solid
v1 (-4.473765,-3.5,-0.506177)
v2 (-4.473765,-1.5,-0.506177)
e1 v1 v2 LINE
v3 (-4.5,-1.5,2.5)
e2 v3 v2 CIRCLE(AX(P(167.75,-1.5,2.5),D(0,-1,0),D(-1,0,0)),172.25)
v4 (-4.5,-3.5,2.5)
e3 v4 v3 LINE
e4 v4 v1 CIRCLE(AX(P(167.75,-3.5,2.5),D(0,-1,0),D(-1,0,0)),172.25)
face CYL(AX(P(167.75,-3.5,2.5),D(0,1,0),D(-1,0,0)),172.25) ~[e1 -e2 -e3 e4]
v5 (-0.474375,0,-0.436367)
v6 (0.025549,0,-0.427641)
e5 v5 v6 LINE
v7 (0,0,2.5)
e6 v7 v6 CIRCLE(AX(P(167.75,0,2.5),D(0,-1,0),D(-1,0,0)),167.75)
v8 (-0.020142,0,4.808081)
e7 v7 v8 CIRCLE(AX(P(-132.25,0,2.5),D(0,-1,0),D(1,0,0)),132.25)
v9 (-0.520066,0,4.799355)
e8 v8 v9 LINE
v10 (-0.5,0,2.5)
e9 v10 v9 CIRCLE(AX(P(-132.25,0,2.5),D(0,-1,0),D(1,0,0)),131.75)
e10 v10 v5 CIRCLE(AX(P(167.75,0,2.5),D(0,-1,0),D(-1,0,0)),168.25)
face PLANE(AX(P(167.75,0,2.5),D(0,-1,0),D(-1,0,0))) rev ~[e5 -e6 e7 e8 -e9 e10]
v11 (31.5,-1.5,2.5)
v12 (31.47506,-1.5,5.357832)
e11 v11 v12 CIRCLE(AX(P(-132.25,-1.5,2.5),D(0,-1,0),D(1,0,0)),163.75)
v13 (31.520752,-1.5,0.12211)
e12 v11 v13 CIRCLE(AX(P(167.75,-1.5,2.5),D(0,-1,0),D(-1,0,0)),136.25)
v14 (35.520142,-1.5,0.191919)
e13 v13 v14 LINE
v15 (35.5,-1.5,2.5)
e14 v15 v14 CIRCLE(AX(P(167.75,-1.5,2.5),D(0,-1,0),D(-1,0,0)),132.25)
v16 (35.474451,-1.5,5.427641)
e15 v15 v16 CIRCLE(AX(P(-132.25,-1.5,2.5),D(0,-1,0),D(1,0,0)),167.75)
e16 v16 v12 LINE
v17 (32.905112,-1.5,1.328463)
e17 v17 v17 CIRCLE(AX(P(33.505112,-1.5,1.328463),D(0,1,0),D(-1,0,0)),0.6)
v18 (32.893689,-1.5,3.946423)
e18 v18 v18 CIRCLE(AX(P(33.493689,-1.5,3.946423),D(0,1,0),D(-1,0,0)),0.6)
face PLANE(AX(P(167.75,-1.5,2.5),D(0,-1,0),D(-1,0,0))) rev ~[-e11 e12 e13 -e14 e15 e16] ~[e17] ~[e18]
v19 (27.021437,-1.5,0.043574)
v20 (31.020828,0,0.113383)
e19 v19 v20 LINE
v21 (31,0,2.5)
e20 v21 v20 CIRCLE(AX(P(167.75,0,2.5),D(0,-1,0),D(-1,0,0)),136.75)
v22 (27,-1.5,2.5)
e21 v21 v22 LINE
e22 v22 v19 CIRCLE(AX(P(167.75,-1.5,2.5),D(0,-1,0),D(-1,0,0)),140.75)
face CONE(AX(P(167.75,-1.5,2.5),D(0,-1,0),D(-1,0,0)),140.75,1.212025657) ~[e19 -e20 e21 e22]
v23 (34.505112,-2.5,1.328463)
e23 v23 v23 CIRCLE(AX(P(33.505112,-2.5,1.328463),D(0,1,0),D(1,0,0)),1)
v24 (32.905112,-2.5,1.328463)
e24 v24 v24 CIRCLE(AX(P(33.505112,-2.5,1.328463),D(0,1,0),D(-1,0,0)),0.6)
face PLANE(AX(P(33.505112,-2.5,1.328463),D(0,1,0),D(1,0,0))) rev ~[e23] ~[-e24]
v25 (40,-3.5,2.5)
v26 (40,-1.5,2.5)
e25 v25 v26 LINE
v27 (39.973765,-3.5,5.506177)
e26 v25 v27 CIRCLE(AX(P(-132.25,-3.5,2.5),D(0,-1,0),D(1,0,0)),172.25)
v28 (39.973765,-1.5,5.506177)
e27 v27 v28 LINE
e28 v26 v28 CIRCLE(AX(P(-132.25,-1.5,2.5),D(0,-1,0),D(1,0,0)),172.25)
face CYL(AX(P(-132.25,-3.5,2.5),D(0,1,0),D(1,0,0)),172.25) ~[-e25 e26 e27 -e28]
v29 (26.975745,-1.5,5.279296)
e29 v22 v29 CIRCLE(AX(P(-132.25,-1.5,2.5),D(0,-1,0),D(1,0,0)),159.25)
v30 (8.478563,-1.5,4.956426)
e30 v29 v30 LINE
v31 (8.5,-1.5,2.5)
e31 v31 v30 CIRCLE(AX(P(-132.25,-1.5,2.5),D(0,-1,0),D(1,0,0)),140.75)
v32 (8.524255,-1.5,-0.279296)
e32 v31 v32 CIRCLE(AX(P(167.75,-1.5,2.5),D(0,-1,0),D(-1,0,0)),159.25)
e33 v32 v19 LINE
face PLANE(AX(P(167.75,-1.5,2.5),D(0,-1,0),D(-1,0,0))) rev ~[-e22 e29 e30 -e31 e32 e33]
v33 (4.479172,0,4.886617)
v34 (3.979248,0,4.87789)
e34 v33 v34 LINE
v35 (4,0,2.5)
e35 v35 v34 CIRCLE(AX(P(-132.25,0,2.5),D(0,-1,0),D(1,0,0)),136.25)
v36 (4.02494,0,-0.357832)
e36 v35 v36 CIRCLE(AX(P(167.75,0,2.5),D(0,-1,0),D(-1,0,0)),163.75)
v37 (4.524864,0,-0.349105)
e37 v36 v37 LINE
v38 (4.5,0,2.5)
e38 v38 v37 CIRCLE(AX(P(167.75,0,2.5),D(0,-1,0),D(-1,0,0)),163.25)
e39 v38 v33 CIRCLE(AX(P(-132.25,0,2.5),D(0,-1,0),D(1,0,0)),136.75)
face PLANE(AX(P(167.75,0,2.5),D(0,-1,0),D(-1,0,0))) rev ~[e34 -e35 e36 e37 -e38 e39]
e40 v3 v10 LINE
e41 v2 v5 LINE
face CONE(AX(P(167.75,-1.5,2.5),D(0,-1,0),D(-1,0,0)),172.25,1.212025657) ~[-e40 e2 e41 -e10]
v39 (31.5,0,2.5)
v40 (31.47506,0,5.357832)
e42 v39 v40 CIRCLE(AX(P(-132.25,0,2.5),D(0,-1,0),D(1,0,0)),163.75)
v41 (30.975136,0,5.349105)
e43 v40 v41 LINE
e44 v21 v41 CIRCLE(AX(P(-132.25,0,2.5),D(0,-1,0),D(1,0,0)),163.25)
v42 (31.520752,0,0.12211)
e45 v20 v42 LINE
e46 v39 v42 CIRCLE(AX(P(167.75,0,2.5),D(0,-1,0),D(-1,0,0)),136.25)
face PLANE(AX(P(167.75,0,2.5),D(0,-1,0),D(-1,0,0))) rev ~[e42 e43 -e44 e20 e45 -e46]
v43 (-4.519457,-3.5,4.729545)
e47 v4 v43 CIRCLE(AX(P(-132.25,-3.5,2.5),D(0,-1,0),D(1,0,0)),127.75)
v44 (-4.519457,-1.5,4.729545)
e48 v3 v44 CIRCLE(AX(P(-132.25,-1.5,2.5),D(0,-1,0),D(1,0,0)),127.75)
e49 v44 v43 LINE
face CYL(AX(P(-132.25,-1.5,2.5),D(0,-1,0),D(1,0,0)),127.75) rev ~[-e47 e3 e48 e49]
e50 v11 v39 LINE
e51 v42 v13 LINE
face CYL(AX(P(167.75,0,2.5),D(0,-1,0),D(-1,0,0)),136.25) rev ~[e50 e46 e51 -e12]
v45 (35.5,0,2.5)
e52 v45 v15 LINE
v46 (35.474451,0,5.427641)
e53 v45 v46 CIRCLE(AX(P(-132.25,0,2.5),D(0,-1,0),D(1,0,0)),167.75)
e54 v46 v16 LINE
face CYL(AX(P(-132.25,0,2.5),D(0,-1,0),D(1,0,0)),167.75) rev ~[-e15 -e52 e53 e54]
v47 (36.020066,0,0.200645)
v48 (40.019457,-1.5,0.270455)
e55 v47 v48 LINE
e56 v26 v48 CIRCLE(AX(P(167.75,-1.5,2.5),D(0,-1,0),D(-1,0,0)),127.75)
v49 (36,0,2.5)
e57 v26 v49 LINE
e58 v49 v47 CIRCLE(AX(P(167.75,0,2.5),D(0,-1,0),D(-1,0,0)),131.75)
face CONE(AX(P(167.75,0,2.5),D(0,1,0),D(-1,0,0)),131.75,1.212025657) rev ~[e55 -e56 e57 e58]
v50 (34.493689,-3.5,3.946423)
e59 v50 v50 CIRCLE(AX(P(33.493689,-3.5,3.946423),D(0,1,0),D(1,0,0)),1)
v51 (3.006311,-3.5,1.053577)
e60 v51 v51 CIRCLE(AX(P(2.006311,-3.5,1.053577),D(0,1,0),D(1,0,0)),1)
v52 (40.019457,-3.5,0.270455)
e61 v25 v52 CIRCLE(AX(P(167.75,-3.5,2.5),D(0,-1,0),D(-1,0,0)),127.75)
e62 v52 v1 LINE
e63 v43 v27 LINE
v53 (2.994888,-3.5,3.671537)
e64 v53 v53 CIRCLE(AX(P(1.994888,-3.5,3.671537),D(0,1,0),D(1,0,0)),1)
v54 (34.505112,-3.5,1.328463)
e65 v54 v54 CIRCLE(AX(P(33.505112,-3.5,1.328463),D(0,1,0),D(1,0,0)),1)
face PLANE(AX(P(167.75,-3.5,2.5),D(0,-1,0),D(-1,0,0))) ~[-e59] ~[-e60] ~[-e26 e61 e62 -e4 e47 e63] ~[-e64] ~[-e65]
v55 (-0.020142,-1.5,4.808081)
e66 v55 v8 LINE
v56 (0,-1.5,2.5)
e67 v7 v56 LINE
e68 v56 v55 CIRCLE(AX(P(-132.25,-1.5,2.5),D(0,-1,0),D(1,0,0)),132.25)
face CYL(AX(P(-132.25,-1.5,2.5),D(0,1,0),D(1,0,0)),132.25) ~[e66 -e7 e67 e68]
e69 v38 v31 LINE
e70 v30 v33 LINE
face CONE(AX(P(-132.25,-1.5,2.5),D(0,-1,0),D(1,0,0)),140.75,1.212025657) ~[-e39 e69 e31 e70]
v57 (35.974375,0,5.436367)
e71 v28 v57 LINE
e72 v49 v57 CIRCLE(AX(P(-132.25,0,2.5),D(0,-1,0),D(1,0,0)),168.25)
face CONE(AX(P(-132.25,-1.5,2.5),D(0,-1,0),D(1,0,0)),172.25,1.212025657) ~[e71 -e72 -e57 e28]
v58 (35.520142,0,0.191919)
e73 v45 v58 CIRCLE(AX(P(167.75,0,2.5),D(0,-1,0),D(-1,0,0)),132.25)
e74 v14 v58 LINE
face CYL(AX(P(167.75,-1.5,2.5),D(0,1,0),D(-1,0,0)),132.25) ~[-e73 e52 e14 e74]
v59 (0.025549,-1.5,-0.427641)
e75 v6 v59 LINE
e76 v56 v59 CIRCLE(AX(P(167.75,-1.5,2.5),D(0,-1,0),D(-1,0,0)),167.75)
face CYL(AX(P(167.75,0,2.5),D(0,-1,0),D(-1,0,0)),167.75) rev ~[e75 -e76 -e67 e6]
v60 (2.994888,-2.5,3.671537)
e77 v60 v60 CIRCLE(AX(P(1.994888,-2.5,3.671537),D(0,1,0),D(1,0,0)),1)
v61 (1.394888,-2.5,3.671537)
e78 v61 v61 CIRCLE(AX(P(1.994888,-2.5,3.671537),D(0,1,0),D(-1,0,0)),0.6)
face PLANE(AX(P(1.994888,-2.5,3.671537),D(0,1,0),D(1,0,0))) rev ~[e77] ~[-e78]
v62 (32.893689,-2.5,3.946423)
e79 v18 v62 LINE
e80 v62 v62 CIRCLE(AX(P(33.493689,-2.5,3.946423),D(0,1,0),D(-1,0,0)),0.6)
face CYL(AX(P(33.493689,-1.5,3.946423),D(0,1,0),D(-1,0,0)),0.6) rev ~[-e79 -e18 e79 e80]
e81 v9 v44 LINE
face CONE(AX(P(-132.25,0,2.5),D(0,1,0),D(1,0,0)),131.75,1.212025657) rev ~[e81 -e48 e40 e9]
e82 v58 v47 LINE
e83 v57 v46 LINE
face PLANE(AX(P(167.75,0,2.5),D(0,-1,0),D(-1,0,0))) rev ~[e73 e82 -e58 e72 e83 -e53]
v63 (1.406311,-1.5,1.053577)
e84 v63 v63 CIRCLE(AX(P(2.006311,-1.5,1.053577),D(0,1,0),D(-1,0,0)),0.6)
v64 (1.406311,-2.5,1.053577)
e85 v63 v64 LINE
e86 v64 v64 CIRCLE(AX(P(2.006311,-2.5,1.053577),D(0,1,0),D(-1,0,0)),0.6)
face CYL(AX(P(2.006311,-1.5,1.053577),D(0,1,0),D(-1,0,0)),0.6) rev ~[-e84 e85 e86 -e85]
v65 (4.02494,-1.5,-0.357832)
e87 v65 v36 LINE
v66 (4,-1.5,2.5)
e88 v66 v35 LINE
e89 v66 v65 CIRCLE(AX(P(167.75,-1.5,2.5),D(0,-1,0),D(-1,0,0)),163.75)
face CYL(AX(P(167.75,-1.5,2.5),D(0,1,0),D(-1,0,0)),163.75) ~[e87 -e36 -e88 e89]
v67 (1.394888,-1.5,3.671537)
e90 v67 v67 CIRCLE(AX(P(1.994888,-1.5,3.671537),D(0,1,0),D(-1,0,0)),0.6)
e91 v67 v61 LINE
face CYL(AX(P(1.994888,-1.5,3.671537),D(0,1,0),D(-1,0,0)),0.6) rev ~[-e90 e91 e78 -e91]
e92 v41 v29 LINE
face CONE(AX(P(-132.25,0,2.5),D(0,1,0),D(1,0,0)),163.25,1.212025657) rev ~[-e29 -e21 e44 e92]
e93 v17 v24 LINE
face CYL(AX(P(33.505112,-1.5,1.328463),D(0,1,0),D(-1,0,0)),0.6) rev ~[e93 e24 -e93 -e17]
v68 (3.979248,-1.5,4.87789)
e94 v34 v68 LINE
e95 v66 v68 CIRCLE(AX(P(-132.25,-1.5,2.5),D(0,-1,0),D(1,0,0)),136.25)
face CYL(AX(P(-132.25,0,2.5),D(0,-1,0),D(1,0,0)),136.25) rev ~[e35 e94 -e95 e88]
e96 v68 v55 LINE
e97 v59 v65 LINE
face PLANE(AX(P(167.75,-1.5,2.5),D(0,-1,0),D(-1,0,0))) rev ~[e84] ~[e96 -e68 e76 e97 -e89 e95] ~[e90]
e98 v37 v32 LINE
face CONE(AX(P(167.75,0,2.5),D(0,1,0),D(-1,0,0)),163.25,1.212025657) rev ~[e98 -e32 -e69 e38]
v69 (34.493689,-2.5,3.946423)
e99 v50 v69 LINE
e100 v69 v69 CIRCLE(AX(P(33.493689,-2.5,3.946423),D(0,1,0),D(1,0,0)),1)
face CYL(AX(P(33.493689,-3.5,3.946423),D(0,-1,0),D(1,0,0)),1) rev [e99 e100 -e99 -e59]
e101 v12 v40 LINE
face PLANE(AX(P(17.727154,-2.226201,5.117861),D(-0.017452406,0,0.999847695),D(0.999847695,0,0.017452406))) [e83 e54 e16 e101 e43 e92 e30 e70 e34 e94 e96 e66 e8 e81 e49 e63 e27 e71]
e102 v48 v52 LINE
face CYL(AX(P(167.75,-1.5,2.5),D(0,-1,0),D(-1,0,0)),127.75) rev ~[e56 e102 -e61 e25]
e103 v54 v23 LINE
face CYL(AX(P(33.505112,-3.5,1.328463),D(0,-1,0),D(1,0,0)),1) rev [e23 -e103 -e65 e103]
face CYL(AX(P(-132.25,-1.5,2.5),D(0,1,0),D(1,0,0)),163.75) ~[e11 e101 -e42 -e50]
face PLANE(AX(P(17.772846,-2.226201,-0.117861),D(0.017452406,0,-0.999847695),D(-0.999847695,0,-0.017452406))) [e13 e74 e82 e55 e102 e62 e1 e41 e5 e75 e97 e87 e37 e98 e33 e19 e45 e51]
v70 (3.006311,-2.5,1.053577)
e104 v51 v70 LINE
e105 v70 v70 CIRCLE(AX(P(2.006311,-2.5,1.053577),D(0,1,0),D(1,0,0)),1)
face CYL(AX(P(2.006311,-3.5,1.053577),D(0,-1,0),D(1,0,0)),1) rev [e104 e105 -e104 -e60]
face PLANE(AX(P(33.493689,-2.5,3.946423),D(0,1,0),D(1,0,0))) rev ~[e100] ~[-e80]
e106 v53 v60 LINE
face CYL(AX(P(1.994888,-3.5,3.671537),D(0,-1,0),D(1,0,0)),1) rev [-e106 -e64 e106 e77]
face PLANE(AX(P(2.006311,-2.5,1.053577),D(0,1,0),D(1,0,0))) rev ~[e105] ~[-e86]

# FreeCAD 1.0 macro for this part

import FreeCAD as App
import Part
import Sketcher
from FreeCAD import Vector
Q = App.Units.Quantity

doc = App.newDocument("Part")
params = doc.addObject("Spreadsheet::Sheet", "Params")
for row, (alias, value) in enumerate([
    ("sketch1_width", "4 mm"),
    ("sketch1_height", "2 mm"),
    ("sketch1_width2", "0.5 mm"),
    ("sketch1_height2", "1.5 mm"),
    ("sketch1_width3", "9.25 mm"),
    ("pad1_length", "2.5 mm"),
    ("sketch2_diameter", "1.2 mm"),
    ("sketch3_diameter", "2 mm"),
    ("pocket2_length", "1 mm"),
    ("sketch4_width", "4 mm"),
    ("sketch4_height", "2 mm"),
    ("sketch4_width2", "0.5 mm"),
    ("sketch4_width3", "44.5 mm"),
    ("sketch4_width4", "18.5 mm"),
    ("revolution_angle", "1 deg"),
    ("sketch5_diameter", "1.2 mm"),
    ("sketch6_diameter", "2 mm"),
    ("pocket4_length", "1 mm"),
    ("sketch7_width", "44.5 mm"),
    ("sketch7_height", "2.5 mm"),
    ("sketch8_width", "4 mm"),
    ("sketch8_height", "2 mm"),
    ("sketch8_width2", "0.5 mm"),
    ("sketch8_width3", "18.5 mm"),
    ("sketch8_width4", "44.5 mm"),
    ("revolution2_angle", "1 deg"),
    ("sketch9_diameter", "1.2 mm"),
    ("sketch10_diameter", "2 mm"),
    ("pocket7_length", "1 mm"),
], start=1):
    params.set(f"A{row}", alias)
    params.set(f"B{row}", "=" + value)
    params.setAlias(f"B{row}", alias)

body = doc.addObject("PartDesign::Body", "Body")

# Sketch on XY plane
sketch1 = doc.addObject("Sketcher::SketchObject", "Sketch")
body.addObject(sketch1)
sketch1.AttachmentSupport = (doc.XY_Plane, [""])
sketch1.MapMode = "FlatFace"
sketch1.addGeometry(Part.LineSegment(Vector(17.8, -1.5, 0), Vector(8.5, -1.5, 0)), False)
sketch1.addGeometry(Part.LineSegment(Vector(8.5, -1.5, 0), Vector(4.5, 0, 0)), False)
sketch1.addGeometry(Part.LineSegment(Vector(4.5, 0, 0), Vector(4, 0, 0)), False)
sketch1.addGeometry(Part.LineSegment(Vector(4, 0, 0), Vector(4, -1.5, 0)), False)
sketch1.addGeometry(Part.LineSegment(Vector(4, -1.5, 0), Vector(0, -1.5, 0)), False)
sketch1.addGeometry(Part.LineSegment(Vector(0, -1.5, 0), Vector(0, 0, 0)), False)
sketch1.addGeometry(Part.LineSegment(Vector(0, 0, 0), Vector(-0.5, 0, 0)), False)
sketch1.addGeometry(Part.LineSegment(Vector(-0.5, 0, 0), Vector(-4.5, -1.5, 0)), False)
sketch1.addGeometry(Part.LineSegment(Vector(-4.5, -1.5, 0), Vector(-4.5, -3.5, 0)), False)
sketch1.addGeometry(Part.LineSegment(Vector(-4.5, -3.5, 0), Vector(17.8, -3.5, 0)), False)
sketch1.addGeometry(Part.LineSegment(Vector(17.8, -3.5, 0), Vector(17.8, -1.5, 0)), False)
sketch1.addConstraint(Sketcher.Constraint("Coincident", 0, 2, 1, 1))
sketch1.addConstraint(Sketcher.Constraint("Coincident", 1, 2, 2, 1))
sketch1.addConstraint(Sketcher.Constraint("Coincident", 2, 2, 3, 1))
sketch1.addConstraint(Sketcher.Constraint("Coincident", 3, 2, 4, 1))
sketch1.addConstraint(Sketcher.Constraint("Coincident", 4, 2, 5, 1))
sketch1.addConstraint(Sketcher.Constraint("Coincident", 5, 2, 6, 1))
sketch1.addConstraint(Sketcher.Constraint("Coincident", 6, 2, 7, 1))
sketch1.addConstraint(Sketcher.Constraint("Coincident", 7, 2, 8, 1))
sketch1.addConstraint(Sketcher.Constraint("Coincident", 8, 2, 9, 1))
sketch1.addConstraint(Sketcher.Constraint("Coincident", 9, 2, 10, 1))
sketch1.addConstraint(Sketcher.Constraint("Coincident", 10, 2, 0, 1))
sketch1.addConstraint(Sketcher.Constraint("Horizontal", 0))
sketch1.addConstraint(Sketcher.Constraint("Horizontal", 2))
sketch1.addConstraint(Sketcher.Constraint("Vertical", 3))
sketch1.addConstraint(Sketcher.Constraint("Horizontal", 4))
sketch1.addConstraint(Sketcher.Constraint("Vertical", 5))
sketch1.addConstraint(Sketcher.Constraint("Horizontal", 6))
sketch1.addConstraint(Sketcher.Constraint("Vertical", 8))
sketch1.addConstraint(Sketcher.Constraint("Horizontal", 9))
sketch1.addConstraint(Sketcher.Constraint("Vertical", 10))
sketch1.addConstraint(Sketcher.Constraint("Coincident", 5, 2, -1, 1))
sketch1.addConstraint(Sketcher.Constraint("PointOnObject", 1, 2, -1))
sketch1.addConstraint(Sketcher.Constraint("Horizontal", 0, 2, 3, 2))
sketch1.addConstraint(Sketcher.Constraint("Horizontal", 4, 2, 7, 2))
sketch1.addConstraint(Sketcher.Constraint("Equal", 2, 6))
sketch1.addConstraint(Sketcher.Constraint("Equal", 1, 7))
sketch1.addConstraint(Sketcher.Constraint("DistanceX", 4, 2, 4, 1, Q("4 mm")))
sketch1.addConstraint(Sketcher.Constraint("DistanceY", 8, 2, 8, 1, Q("2 mm")))
sketch1.addConstraint(Sketcher.Constraint("DistanceX", 2, 2, 2, 1, Q("0.5 mm")))
sketch1.addConstraint(Sketcher.Constraint("DistanceY", 3, 2, 3, 1, Q("1.5 mm")))
sketch1.addConstraint(Sketcher.Constraint("DistanceX", 1, 2, 0, 2, Q("4 mm")))
sketch1.addConstraint(Sketcher.Constraint("DistanceX", 0, 2, 0, 1, Q("9.25 mm")))
sketch1.setExpression("Constraints[26]", "Params.sketch1_width")
sketch1.setExpression("Constraints[27]", "Params.sketch1_height")
sketch1.setExpression("Constraints[28]", "Params.sketch1_width2")
sketch1.setExpression("Constraints[29]", "Params.sketch1_height2")
sketch1.setExpression("Constraints[31]", "Params.sketch1_width3")
pad1 = doc.addObject("PartDesign::Pad", "Pad")
body.addObject(pad1)
pad1.Profile = sketch1
pad1.setExpression("Length", "Params.pad1_length")

# Sketch on XZ plane
sketch2 = doc.addObject("Sketcher::SketchObject", "Sketch001")
body.addObject(sketch2)
sketch2.AttachmentSupport = (doc.XZ_Plane, [""])
sketch2.MapMode = "FlatFace"
sketch2.AttachmentOffset = App.Placement(Vector(0, 0, 1.5), App.Rotation())
sketch2.addGeometry(Part.Circle(Vector(2, 1.2, 0), Vector(0, 0, 1), 0.6), False)
sketch2.addConstraint(Sketcher.Constraint("Diameter", 0, Q("1.2 mm")))
sketch2.addConstraint(Sketcher.Constraint("DistanceX", -1, 1, 0, 3, Q("2 mm")))
sketch2.addConstraint(Sketcher.Constraint("DistanceY", -1, 1, 0, 3, Q("1.25 mm")))
sketch2.setExpression("Constraints[0]", "Params.sketch2_diameter")
pocket1 = doc.addObject("PartDesign::Pocket", "Pocket")
body.addObject(pocket1)
pocket1.Profile = sketch2
pocket1.Type = "ThroughAll"
pocket1.Reversed = True

# Sketch on XZ plane
sketch3 = doc.addObject("Sketcher::SketchObject", "Sketch002")
body.addObject(sketch3)
sketch3.AttachmentSupport = (doc.XZ_Plane, [""])
sketch3.MapMode = "FlatFace"
sketch3.AttachmentOffset = App.Placement(Vector(0, 0, 3.5), App.Rotation())
sketch3.addGeometry(Part.Circle(Vector(2, 1.2, 0), Vector(0, 0, 1), 1), False)
sketch3.addConstraint(Sketcher.Constraint("Diameter", 0, Q("2 mm")))
sketch3.addConstraint(Sketcher.Constraint("DistanceX", -1, 1, 0, 3, Q("2 mm")))
sketch3.addConstraint(Sketcher.Constraint("DistanceY", -1, 1, 0, 3, Q("1.25 mm")))
sketch3.setExpression("Constraints[0]", "Params.sketch3_diameter")
pocket2 = doc.addObject("PartDesign::Pocket", "Pocket001")
body.addObject(pocket2)
pocket2.Profile = sketch3
pocket2.setExpression("Length", "Params.pocket2_length")
body2 = doc.addObject("PartDesign::Body", "Body001")
doc.recompute()

body2.BaseFeature = body
doc.recompute()

mirroring = doc.addObject("Part::Mirroring", "Mirroring")
mirroring.Source = body
mirroring.Base = Vector(17.75, 0, 2.5)
mirroring.Normal = Vector(1, 0, 0)
body3 = doc.addObject("PartDesign::Body", "Body002")
body3.BaseFeature = mirroring
boolean = doc.addObject("PartDesign::Boolean", "Boolean")
body2.addObject(boolean)
boolean.Type = "Fuse"
boolean.addObjects([body3])
doc.recompute()

# Sketch on XY plane
sketch4 = doc.addObject("Sketcher::SketchObject", "Sketch003")
body2.addObject(sketch4)
sketch4.AttachmentSupport = (doc.getObject("XY_Plane001"), [""])
sketch4.MapMode = "FlatFace"
sketch4.AttachmentOffset = App.Placement(Vector(0, 0, 2.5), App.Rotation())
sketch4.addGeometry(Part.LineSegment(Vector(0, 0, 0), Vector(-0.5, 0, 0)), False)
sketch4.addGeometry(Part.LineSegment(Vector(-0.5, 0, 0), Vector(-4.5, -1.5, 0)), False)
sketch4.addGeometry(Part.LineSegment(Vector(-4.5, -1.5, 0), Vector(-4.5, -3.5, 0)), False)
sketch4.addGeometry(Part.LineSegment(Vector(-4.5, -3.5, 0), Vector(40, -3.5, 0)), False)
sketch4.addGeometry(Part.LineSegment(Vector(40, -3.5, 0), Vector(40, -1.5, 0)), False)
sketch4.addGeometry(Part.LineSegment(Vector(40, -1.5, 0), Vector(36, 0, 0)), False)
sketch4.addGeometry(Part.LineSegment(Vector(36, 0, 0), Vector(35.5, 0, 0)), False)
sketch4.addGeometry(Part.LineSegment(Vector(35.5, 0, 0), Vector(35.5, -1.5, 0)), False)
sketch4.addGeometry(Part.LineSegment(Vector(35.5, -1.5, 0), Vector(31.5, -1.5, 0)), False)
sketch4.addGeometry(Part.LineSegment(Vector(31.5, -1.5, 0), Vector(31.5, 0, 0)), False)
sketch4.addGeometry(Part.LineSegment(Vector(31.5, 0, 0), Vector(31, 0, 0)), False)
sketch4.addGeometry(Part.LineSegment(Vector(31, 0, 0), Vector(27, -1.5, 0)), False)
sketch4.addGeometry(Part.LineSegment(Vector(27, -1.5, 0), Vector(8.5, -1.5, 0)), False)
sketch4.addGeometry(Part.LineSegment(Vector(8.5, -1.5, 0), Vector(4.5, 0, 0)), False)
sketch4.addGeometry(Part.LineSegment(Vector(4.5, 0, 0), Vector(4, 0, 0)), False)
sketch4.addGeometry(Part.LineSegment(Vector(4, 0, 0), Vector(4, -1.5, 0)), False)
sketch4.addGeometry(Part.LineSegment(Vector(4, -1.5, 0), Vector(0, -1.5, 0)), False)
sketch4.addGeometry(Part.LineSegment(Vector(0, -1.5, 0), Vector(0, 0, 0)), False)
sketch4.addGeometry(Part.LineSegment(Vector(-132.2, 0, 0), Vector(-132.2, -3.5, 0)), True)  # axis
sketch4.addConstraint(Sketcher.Constraint("Coincident", 0, 2, 1, 1))
sketch4.addConstraint(Sketcher.Constraint("Coincident", 1, 2, 2, 1))
sketch4.addConstraint(Sketcher.Constraint("Coincident", 2, 2, 3, 1))
sketch4.addConstraint(Sketcher.Constraint("Coincident", 3, 2, 4, 1))
sketch4.addConstraint(Sketcher.Constraint("Coincident", 4, 2, 5, 1))
sketch4.addConstraint(Sketcher.Constraint("Coincident", 5, 2, 6, 1))
sketch4.addConstraint(Sketcher.Constraint("Coincident", 6, 2, 7, 1))
sketch4.addConstraint(Sketcher.Constraint("Coincident", 7, 2, 8, 1))
sketch4.addConstraint(Sketcher.Constraint("Coincident", 8, 2, 9, 1))
sketch4.addConstraint(Sketcher.Constraint("Coincident", 9, 2, 10, 1))
sketch4.addConstraint(Sketcher.Constraint("Coincident", 10, 2, 11, 1))
sketch4.addConstraint(Sketcher.Constraint("Coincident", 11, 2, 12, 1))
sketch4.addConstraint(Sketcher.Constraint("Coincident", 12, 2, 13, 1))
sketch4.addConstraint(Sketcher.Constraint("Coincident", 13, 2, 14, 1))
sketch4.addConstraint(Sketcher.Constraint("Coincident", 14, 2, 15, 1))
sketch4.addConstraint(Sketcher.Constraint("Coincident", 15, 2, 16, 1))
sketch4.addConstraint(Sketcher.Constraint("Coincident", 16, 2, 17, 1))
sketch4.addConstraint(Sketcher.Constraint("Coincident", 17, 2, 0, 1))
sketch4.addConstraint(Sketcher.Constraint("Horizontal", 0))
sketch4.addConstraint(Sketcher.Constraint("Vertical", 2))
sketch4.addConstraint(Sketcher.Constraint("Horizontal", 3))
sketch4.addConstraint(Sketcher.Constraint("Vertical", 4))
sketch4.addConstraint(Sketcher.Constraint("Horizontal", 6))
sketch4.addConstraint(Sketcher.Constraint("Vertical", 7))
sketch4.addConstraint(Sketcher.Constraint("Horizontal", 8))
sketch4.addConstraint(Sketcher.Constraint("Vertical", 9))
sketch4.addConstraint(Sketcher.Constraint("Horizontal", 10))
sketch4.addConstraint(Sketcher.Constraint("Horizontal", 12))
sketch4.addConstraint(Sketcher.Constraint("Horizontal", 14))
sketch4.addConstraint(Sketcher.Constraint("Vertical", 15))
sketch4.addConstraint(Sketcher.Constraint("Horizontal", 16))
sketch4.addConstraint(Sketcher.Constraint("Vertical", 17))
sketch4.addConstraint(Sketcher.Constraint("Vertical", 18))
sketch4.addConstraint(Sketcher.Constraint("Coincident", 17, 2, -1, 1))
sketch4.addConstraint(Sketcher.Constraint("PointOnObject", 5, 2, -1))
sketch4.addConstraint(Sketcher.Constraint("PointOnObject", 9, 2, -1))
sketch4.addConstraint(Sketcher.Constraint("PointOnObject", 13, 2, -1))
sketch4.addConstraint(Sketcher.Constraint("PointOnObject", 18, 1, -1))
sketch4.addConstraint(Sketcher.Constraint("Parallel", 1, 11))
sketch4.addConstraint(Sketcher.Constraint("Parallel", 5, 13))
sketch4.addConstraint(Sketcher.Constraint("Horizontal", 1, 2, 4, 2))
sketch4.addConstraint(Sketcher.Constraint("Horizontal", 4, 2, 7, 2))
sketch4.addConstraint(Sketcher.Constraint("Horizontal", 8, 2, 11, 2))
sketch4.addConstraint(Sketcher.Constraint("Horizontal", 12, 2, 15, 2))
sketch4.addConstraint(Sketcher.Constraint("Horizontal", 3, 2, 18, 2))
sketch4.addConstraint(Sketcher.Constraint("Equal", 0, 6))
sketch4.addConstraint(Sketcher.Constraint("Equal", 6, 10))
sketch4.addConstraint(Sketcher.Constraint("Equal", 10, 14))
sketch4.addConstraint(Sketcher.Constraint("Equal", 8, 16))
sketch4.addConstraint(Sketcher.Constraint("Equal", 1, 5))
sketch4.addConstraint(Sketcher.Constraint("DistanceX", 8, 2, 8, 1, Q("4 mm")))
sketch4.addConstraint(Sketcher.Constraint("DistanceY", 2, 2, 2, 1, Q("2 mm")))
sketch4.addConstraint(Sketcher.Constraint("DistanceX", 0, 2, 0, 1, Q("0.5 mm")))
sketch4.addConstraint(Sketcher.Constraint("DistanceX", 3, 1, 3, 2, Q("44.5 mm")))
sketch4.addConstraint(Sketcher.Constraint("DistanceX", 12, 2, 12, 1, Q("18.5 mm")))
sketch4.addConstraint(Sketcher.Constraint("DistanceY", 7, 2, 7, 1, Q("1.5 mm")))
sketch4.addConstraint(Sketcher.Constraint("DistanceX", 18, 1, -1, 1, Q("132.25 mm")))
sketch4.setExpression("Constraints[50]", "Params.sketch4_width")
sketch4.setExpression("Constraints[51]", "Params.sketch4_height")
sketch4.setExpression("Constraints[52]", "Params.sketch4_width2")
sketch4.setExpression("Constraints[53]", "Params.sketch4_width3")
sketch4.setExpression("Constraints[54]", "Params.sketch4_width4")
revolution = doc.addObject("PartDesign::Revolution", "Revolution")
body2.addObject(revolution)
revolution.Profile = sketch4
revolution.ReferenceAxis = (sketch4, ["Axis0"])
revolution.setExpression("Angle", "Params.revolution_angle")

# Sketch on XZ plane
sketch5 = doc.addObject("Sketcher::SketchObject", "Sketch004")
body2.addObject(sketch5)
sketch5.AttachmentSupport = (doc.getObject("XZ_Plane001"), [""])
sketch5.MapMode = "FlatFace"
sketch5.AttachmentOffset = App.Placement(Vector(0, 0, 1.5), App.Rotation())
sketch5.addGeometry(Part.Circle(Vector(2, 3.7, 0), Vector(0, 0, 1), 0.6), False)
sketch5.addGeometry(Part.Circle(Vector(33.5, 3.9, 0), Vector(0, 0, 1), 0.6), False)
sketch5.addConstraint(Sketcher.Constraint("Equal", 0, 1))
sketch5.addConstraint(Sketcher.Constraint("Diameter", 0, Q("1.2 mm")))
sketch5.addConstraint(Sketcher.Constraint("DistanceX", 0, 3, 1, 3, Q("31.498801 mm")))
sketch5.addConstraint(Sketcher.Constraint("DistanceX", -1, 1, 0, 3, Q("1.994888 mm")))
sketch5.addConstraint(Sketcher.Constraint("DistanceY", -1, 1, 0, 3, Q("3.671537 mm")))
sketch5.addConstraint(Sketcher.Constraint("DistanceY", -1, 1, 1, 3, Q("3.946423 mm")))
sketch5.setExpression("Constraints[1]", "Params.sketch5_diameter")
pocket3 = doc.addObject("PartDesign::Pocket", "Pocket002")
body2.addObject(pocket3)
pocket3.Profile = sketch5
pocket3.Type = "ThroughAll"
pocket3.Reversed = True

# Sketch on XZ plane
sketch6 = doc.addObject("Sketcher::SketchObject", "Sketch005")
body2.addObject(sketch6)
sketch6.AttachmentSupport = (doc.getObject("XZ_Plane001"), [""])
sketch6.MapMode = "FlatFace"
sketch6.AttachmentOffset = App.Placement(Vector(0, 0, 3.5), App.Rotation())
sketch6.addGeometry(Part.Circle(Vector(2, 3.7, 0), Vector(0, 0, 1), 1), False)
sketch6.addGeometry(Part.Circle(Vector(33.5, 3.9, 0), Vector(0, 0, 1), 1), False)
sketch6.addConstraint(Sketcher.Constraint("Equal", 0, 1))
sketch6.addConstraint(Sketcher.Constraint("Diameter", 0, Q("2 mm")))
sketch6.addConstraint(Sketcher.Constraint("DistanceX", 0, 3, 1, 3, Q("31.498801 mm")))
sketch6.addConstraint(Sketcher.Constraint("DistanceX", -1, 1, 0, 3, Q("1.994888 mm")))
sketch6.addConstraint(Sketcher.Constraint("DistanceY", -1, 1, 0, 3, Q("3.671537 mm")))
sketch6.addConstraint(Sketcher.Constraint("DistanceY", -1, 1, 1, 3, Q("3.946423 mm")))
sketch6.setExpression("Constraints[1]", "Params.sketch6_diameter")
pocket4 = doc.addObject("PartDesign::Pocket", "Pocket003")
body2.addObject(pocket4)
pocket4.Profile = sketch6
pocket4.setExpression("Length", "Params.pocket4_length")

# Sketch on XZ plane
sketch7 = doc.addObject("Sketcher::SketchObject", "Sketch006")
body2.addObject(sketch7)
sketch7.AttachmentSupport = (doc.getObject("XZ_Plane001"), [""])
sketch7.MapMode = "FlatFace"
sketch7.addGeometry(Part.LineSegment(Vector(-4.5, 0, 0), Vector(-4.5, 2.5, 0)), False)
sketch7.addGeometry(Part.LineSegment(Vector(-4.5, 2.5, 0), Vector(40, 2.5, 0)), False)
sketch7.addGeometry(Part.LineSegment(Vector(40, 2.5, 0), Vector(40, 0, 0)), False)
sketch7.addGeometry(Part.LineSegment(Vector(40, 0, 0), Vector(-4.5, 0, 0)), False)
sketch7.addConstraint(Sketcher.Constraint("Coincident", 0, 2, 1, 1))
sketch7.addConstraint(Sketcher.Constraint("Coincident", 1, 2, 2, 1))
sketch7.addConstraint(Sketcher.Constraint("Coincident", 2, 2, 3, 1))
sketch7.addConstraint(Sketcher.Constraint("Coincident", 3, 2, 0, 1))
sketch7.addConstraint(Sketcher.Constraint("Vertical", 0))
sketch7.addConstraint(Sketcher.Constraint("Horizontal", 1))
sketch7.addConstraint(Sketcher.Constraint("Vertical", 2))
sketch7.addConstraint(Sketcher.Constraint("Horizontal", 3))
sketch7.addConstraint(Sketcher.Constraint("PointOnObject", 2, 2, -1))
sketch7.addConstraint(Sketcher.Constraint("DistanceX", 1, 1, 1, 2, Q("44.5 mm")))
sketch7.addConstraint(Sketcher.Constraint("DistanceY", 0, 1, 0, 2, Q("2.5 mm")))
sketch7.addConstraint(Sketcher.Constraint("DistanceX", -1, 1, 1, 2, Q("40 mm")))
sketch7.setExpression("Constraints[9]", "Params.sketch7_width")
sketch7.setExpression("Constraints[10]", "Params.sketch7_height")
pocket5 = doc.addObject("PartDesign::Pocket", "Pocket004")
body2.addObject(pocket5)
pocket5.Profile = sketch7
pocket5.Type = "ThroughAll"
pocket5.Reversed = True

# Sketch on XY plane
sketch8 = doc.addObject("Sketcher::SketchObject", "Sketch007")
body2.addObject(sketch8)
sketch8.AttachmentSupport = (doc.getObject("XY_Plane001"), [""])
sketch8.MapMode = "FlatFace"
sketch8.AttachmentOffset = App.Placement(Vector(0, 0, 2.5), App.Rotation())
sketch8.addGeometry(Part.LineSegment(Vector(-0.5, 0, 0), Vector(0, 0, 0)), False)
sketch8.addGeometry(Part.LineSegment(Vector(0, 0, 0), Vector(0, -1.5, 0)), False)
sketch8.addGeometry(Part.LineSegment(Vector(0, -1.5, 0), Vector(4, -1.5, 0)), False)
sketch8.addGeometry(Part.LineSegment(Vector(4, -1.5, 0), Vector(4, 0, 0)), False)
sketch8.addGeometry(Part.LineSegment(Vector(4, 0, 0), Vector(4.5, 0, 0)), False)
sketch8.addGeometry(Part.LineSegment(Vector(4.5, 0, 0), Vector(8.5, -1.5, 0)), False)
sketch8.addGeometry(Part.LineSegment(Vector(8.5, -1.5, 0), Vector(27, -1.5, 0)), False)
sketch8.addGeometry(Part.LineSegment(Vector(27, -1.5, 0), Vector(31, 0, 0)), False)
sketch8.addGeometry(Part.LineSegment(Vector(31, 0, 0), Vector(31.5, 0, 0)), False)
sketch8.addGeometry(Part.LineSegment(Vector(31.5, 0, 0), Vector(31.5, -1.5, 0)), False)
sketch8.addGeometry(Part.LineSegment(Vector(31.5, -1.5, 0), Vector(35.5, -1.5, 0)), False)
sketch8.addGeometry(Part.LineSegment(Vector(35.5, -1.5, 0), Vector(35.5, 0, 0)), False)
sketch8.addGeometry(Part.LineSegment(Vector(35.5, 0, 0), Vector(36, 0, 0)), False)
sketch8.addGeometry(Part.LineSegment(Vector(36, 0, 0), Vector(40, -1.5, 0)), False)
sketch8.addGeometry(Part.LineSegment(Vector(40, -1.5, 0), Vector(40, -3.5, 0)), False)
sketch8.addGeometry(Part.LineSegment(Vector(40, -3.5, 0), Vector(-4.5, -3.5, 0)), False)
sketch8.addGeometry(Part.LineSegment(Vector(-4.5, -3.5, 0), Vector(-4.5, -1.5, 0)), False)
sketch8.addGeometry(Part.LineSegment(Vector(-4.5, -1.5, 0), Vector(-0.5, 0, 0)), False)
sketch8.addGeometry(Part.LineSegment(Vector(167.8, 0, 0), Vector(167.8, -3.5, 0)), True)  # axis
sketch8.addConstraint(Sketcher.Constraint("Coincident", 0, 2, 1, 1))
sketch8.addConstraint(Sketcher.Constraint("Coincident", 1, 2, 2, 1))
sketch8.addConstraint(Sketcher.Constraint("Coincident", 2, 2, 3, 1))
sketch8.addConstraint(Sketcher.Constraint("Coincident", 3, 2, 4, 1))
sketch8.addConstraint(Sketcher.Constraint("Coincident", 4, 2, 5, 1))
sketch8.addConstraint(Sketcher.Constraint("Coincident", 5, 2, 6, 1))
sketch8.addConstraint(Sketcher.Constraint("Coincident", 6, 2, 7, 1))
sketch8.addConstraint(Sketcher.Constraint("Coincident", 7, 2, 8, 1))
sketch8.addConstraint(Sketcher.Constraint("Coincident", 8, 2, 9, 1))
sketch8.addConstraint(Sketcher.Constraint("Coincident", 9, 2, 10, 1))
sketch8.addConstraint(Sketcher.Constraint("Coincident", 10, 2, 11, 1))
sketch8.addConstraint(Sketcher.Constraint("Coincident", 11, 2, 12, 1))
sketch8.addConstraint(Sketcher.Constraint("Coincident", 12, 2, 13, 1))
sketch8.addConstraint(Sketcher.Constraint("Coincident", 13, 2, 14, 1))
sketch8.addConstraint(Sketcher.Constraint("Coincident", 14, 2, 15, 1))
sketch8.addConstraint(Sketcher.Constraint("Coincident", 15, 2, 16, 1))
sketch8.addConstraint(Sketcher.Constraint("Coincident", 16, 2, 17, 1))
sketch8.addConstraint(Sketcher.Constraint("Coincident", 17, 2, 0, 1))
sketch8.addConstraint(Sketcher.Constraint("Horizontal", 0))
sketch8.addConstraint(Sketcher.Constraint("Vertical", 1))
sketch8.addConstraint(Sketcher.Constraint("Horizontal", 2))
sketch8.addConstraint(Sketcher.Constraint("Vertical", 3))
sketch8.addConstraint(Sketcher.Constraint("Horizontal", 4))
sketch8.addConstraint(Sketcher.Constraint("Horizontal", 6))
sketch8.addConstraint(Sketcher.Constraint("Horizontal", 8))
sketch8.addConstraint(Sketcher.Constraint("Vertical", 9))
sketch8.addConstraint(Sketcher.Constraint("Horizontal", 10))
sketch8.addConstraint(Sketcher.Constraint("Vertical", 11))
sketch8.addConstraint(Sketcher.Constraint("Horizontal", 12))
sketch8.addConstraint(Sketcher.Constraint("Vertical", 14))
sketch8.addConstraint(Sketcher.Constraint("Horizontal", 15))
sketch8.addConstraint(Sketcher.Constraint("Vertical", 16))
sketch8.addConstraint(Sketcher.Constraint("Vertical", 18))
sketch8.addConstraint(Sketcher.Constraint("Coincident", 0, 2, -1, 1))
sketch8.addConstraint(Sketcher.Constraint("PointOnObject", 3, 2, -1))
sketch8.addConstraint(Sketcher.Constraint("PointOnObject", 7, 2, -1))
sketch8.addConstraint(Sketcher.Constraint("PointOnObject", 11, 2, -1))
sketch8.addConstraint(Sketcher.Constraint("PointOnObject", 18, 1, -1))
sketch8.addConstraint(Sketcher.Constraint("Parallel", 5, 13))
sketch8.addConstraint(Sketcher.Constraint("Parallel", 7, 17))
sketch8.addConstraint(Sketcher.Constraint("Horizontal", 2, 2, 5, 2))
sketch8.addConstraint(Sketcher.Constraint("Horizontal", 6, 2, 9, 2))
sketch8.addConstraint(Sketcher.Constraint("Horizontal", 10, 2, 13, 2))
sketch8.addConstraint(Sketcher.Constraint("Horizontal", 13, 2, 16, 2))
sketch8.addConstraint(Sketcher.Constraint("Horizontal", 15, 2, 18, 2))
sketch8.addConstraint(Sketcher.Constraint("Equal", 0, 4))
sketch8.addConstraint(Sketcher.Constraint("Equal", 4, 8))
sketch8.addConstraint(Sketcher.Constraint("Equal", 2, 10))
sketch8.addConstraint(Sketcher.Constraint("Equal", 8, 12))
sketch8.addConstraint(Sketcher.Constraint("Equal", 5, 7))
sketch8.addConstraint(Sketcher.Constraint("DistanceX", 2, 1, 2, 2, Q("4 mm")))
sketch8.addConstraint(Sketcher.Constraint("DistanceY", 14, 2, 14, 1, Q("2 mm")))
sketch8.addConstraint(Sketcher.Constraint("DistanceX", 0, 1, 0, 2, Q("0.5 mm")))
sketch8.addConstraint(Sketcher.Constraint("DistanceX", 6, 1, 6, 2, Q("18.5 mm")))
sketch8.addConstraint(Sketcher.Constraint("DistanceX", 15, 2, 15, 1, Q("44.5 mm")))
sketch8.addConstraint(Sketcher.Constraint("DistanceY", 1, 2, 1, 1, Q("1.5 mm")))
sketch8.addConstraint(Sketcher.Constraint("DistanceX", -1, 1, 18, 1, Q("167.75 mm")))
sketch8.setExpression("Constraints[50]", "Params.sketch8_width")
sketch8.setExpression("Constraints[51]", "Params.sketch8_height")
sketch8.setExpression("Constraints[52]", "Params.sketch8_width2")
sketch8.setExpression("Constraints[53]", "Params.sketch8_width3")
sketch8.setExpression("Constraints[54]", "Params.sketch8_width4")
revolution2 = doc.addObject("PartDesign::Revolution", "Revolution001")
body2.addObject(revolution2)
revolution2.Profile = sketch8
revolution2.ReferenceAxis = (sketch8, ["Axis0"])
revolution2.setExpression("Angle", "Params.revolution2_angle")

# Sketch on XZ plane
sketch9 = doc.addObject("Sketcher::SketchObject", "Sketch008")
body2.addObject(sketch9)
sketch9.AttachmentSupport = (doc.getObject("XZ_Plane001"), [""])
sketch9.MapMode = "FlatFace"
sketch9.AttachmentOffset = App.Placement(Vector(0, 0, 1.5), App.Rotation())
sketch9.addGeometry(Part.Circle(Vector(2, 1.1, 0), Vector(0, 0, 1), 0.6), False)
sketch9.addGeometry(Part.Circle(Vector(33.5, 1.3, 0), Vector(0, 0, 1), 0.6), False)
sketch9.addConstraint(Sketcher.Constraint("Equal", 0, 1))
sketch9.addConstraint(Sketcher.Constraint("Diameter", 0, Q("1.2 mm")))
sketch9.addConstraint(Sketcher.Constraint("DistanceX", 0, 3, 1, 3, Q("31.498801 mm")))
sketch9.addConstraint(Sketcher.Constraint("DistanceX", -1, 1, 0, 3, Q("2.006311 mm")))
sketch9.addConstraint(Sketcher.Constraint("DistanceY", -1, 1, 0, 3, Q("1.053577 mm")))
sketch9.addConstraint(Sketcher.Constraint("DistanceY", -1, 1, 1, 3, Q("1.328463 mm")))
sketch9.setExpression("Constraints[1]", "Params.sketch9_diameter")
pocket6 = doc.addObject("PartDesign::Pocket", "Pocket005")
body2.addObject(pocket6)
pocket6.Profile = sketch9
pocket6.Type = "ThroughAll"
pocket6.Reversed = True

# Sketch on XZ plane
sketch10 = doc.addObject("Sketcher::SketchObject", "Sketch009")
body2.addObject(sketch10)
sketch10.AttachmentSupport = (doc.getObject("XZ_Plane001"), [""])
sketch10.MapMode = "FlatFace"
sketch10.AttachmentOffset = App.Placement(Vector(0, 0, 3.5), App.Rotation())
sketch10.addGeometry(Part.Circle(Vector(2, 1.1, 0), Vector(0, 0, 1), 1), False)
sketch10.addGeometry(Part.Circle(Vector(33.5, 1.3, 0), Vector(0, 0, 1), 1), False)
sketch10.addConstraint(Sketcher.Constraint("Equal", 0, 1))
sketch10.addConstraint(Sketcher.Constraint("Diameter", 0, Q("2 mm")))
sketch10.addConstraint(Sketcher.Constraint("DistanceX", 0, 3, 1, 3, Q("31.498801 mm")))
sketch10.addConstraint(Sketcher.Constraint("DistanceX", -1, 1, 0, 3, Q("2.006311 mm")))
sketch10.addConstraint(Sketcher.Constraint("DistanceY", -1, 1, 0, 3, Q("1.053577 mm")))
sketch10.addConstraint(Sketcher.Constraint("DistanceY", -1, 1, 1, 3, Q("1.328463 mm")))
sketch10.setExpression("Constraints[1]", "Params.sketch10_diameter")
pocket7 = doc.addObject("PartDesign::Pocket", "Pocket006")
body2.addObject(pocket7)
pocket7.Profile = sketch10
pocket7.setExpression("Length", "Params.pocket7_length")
mirroring.Visibility = False

doc.recompute()
